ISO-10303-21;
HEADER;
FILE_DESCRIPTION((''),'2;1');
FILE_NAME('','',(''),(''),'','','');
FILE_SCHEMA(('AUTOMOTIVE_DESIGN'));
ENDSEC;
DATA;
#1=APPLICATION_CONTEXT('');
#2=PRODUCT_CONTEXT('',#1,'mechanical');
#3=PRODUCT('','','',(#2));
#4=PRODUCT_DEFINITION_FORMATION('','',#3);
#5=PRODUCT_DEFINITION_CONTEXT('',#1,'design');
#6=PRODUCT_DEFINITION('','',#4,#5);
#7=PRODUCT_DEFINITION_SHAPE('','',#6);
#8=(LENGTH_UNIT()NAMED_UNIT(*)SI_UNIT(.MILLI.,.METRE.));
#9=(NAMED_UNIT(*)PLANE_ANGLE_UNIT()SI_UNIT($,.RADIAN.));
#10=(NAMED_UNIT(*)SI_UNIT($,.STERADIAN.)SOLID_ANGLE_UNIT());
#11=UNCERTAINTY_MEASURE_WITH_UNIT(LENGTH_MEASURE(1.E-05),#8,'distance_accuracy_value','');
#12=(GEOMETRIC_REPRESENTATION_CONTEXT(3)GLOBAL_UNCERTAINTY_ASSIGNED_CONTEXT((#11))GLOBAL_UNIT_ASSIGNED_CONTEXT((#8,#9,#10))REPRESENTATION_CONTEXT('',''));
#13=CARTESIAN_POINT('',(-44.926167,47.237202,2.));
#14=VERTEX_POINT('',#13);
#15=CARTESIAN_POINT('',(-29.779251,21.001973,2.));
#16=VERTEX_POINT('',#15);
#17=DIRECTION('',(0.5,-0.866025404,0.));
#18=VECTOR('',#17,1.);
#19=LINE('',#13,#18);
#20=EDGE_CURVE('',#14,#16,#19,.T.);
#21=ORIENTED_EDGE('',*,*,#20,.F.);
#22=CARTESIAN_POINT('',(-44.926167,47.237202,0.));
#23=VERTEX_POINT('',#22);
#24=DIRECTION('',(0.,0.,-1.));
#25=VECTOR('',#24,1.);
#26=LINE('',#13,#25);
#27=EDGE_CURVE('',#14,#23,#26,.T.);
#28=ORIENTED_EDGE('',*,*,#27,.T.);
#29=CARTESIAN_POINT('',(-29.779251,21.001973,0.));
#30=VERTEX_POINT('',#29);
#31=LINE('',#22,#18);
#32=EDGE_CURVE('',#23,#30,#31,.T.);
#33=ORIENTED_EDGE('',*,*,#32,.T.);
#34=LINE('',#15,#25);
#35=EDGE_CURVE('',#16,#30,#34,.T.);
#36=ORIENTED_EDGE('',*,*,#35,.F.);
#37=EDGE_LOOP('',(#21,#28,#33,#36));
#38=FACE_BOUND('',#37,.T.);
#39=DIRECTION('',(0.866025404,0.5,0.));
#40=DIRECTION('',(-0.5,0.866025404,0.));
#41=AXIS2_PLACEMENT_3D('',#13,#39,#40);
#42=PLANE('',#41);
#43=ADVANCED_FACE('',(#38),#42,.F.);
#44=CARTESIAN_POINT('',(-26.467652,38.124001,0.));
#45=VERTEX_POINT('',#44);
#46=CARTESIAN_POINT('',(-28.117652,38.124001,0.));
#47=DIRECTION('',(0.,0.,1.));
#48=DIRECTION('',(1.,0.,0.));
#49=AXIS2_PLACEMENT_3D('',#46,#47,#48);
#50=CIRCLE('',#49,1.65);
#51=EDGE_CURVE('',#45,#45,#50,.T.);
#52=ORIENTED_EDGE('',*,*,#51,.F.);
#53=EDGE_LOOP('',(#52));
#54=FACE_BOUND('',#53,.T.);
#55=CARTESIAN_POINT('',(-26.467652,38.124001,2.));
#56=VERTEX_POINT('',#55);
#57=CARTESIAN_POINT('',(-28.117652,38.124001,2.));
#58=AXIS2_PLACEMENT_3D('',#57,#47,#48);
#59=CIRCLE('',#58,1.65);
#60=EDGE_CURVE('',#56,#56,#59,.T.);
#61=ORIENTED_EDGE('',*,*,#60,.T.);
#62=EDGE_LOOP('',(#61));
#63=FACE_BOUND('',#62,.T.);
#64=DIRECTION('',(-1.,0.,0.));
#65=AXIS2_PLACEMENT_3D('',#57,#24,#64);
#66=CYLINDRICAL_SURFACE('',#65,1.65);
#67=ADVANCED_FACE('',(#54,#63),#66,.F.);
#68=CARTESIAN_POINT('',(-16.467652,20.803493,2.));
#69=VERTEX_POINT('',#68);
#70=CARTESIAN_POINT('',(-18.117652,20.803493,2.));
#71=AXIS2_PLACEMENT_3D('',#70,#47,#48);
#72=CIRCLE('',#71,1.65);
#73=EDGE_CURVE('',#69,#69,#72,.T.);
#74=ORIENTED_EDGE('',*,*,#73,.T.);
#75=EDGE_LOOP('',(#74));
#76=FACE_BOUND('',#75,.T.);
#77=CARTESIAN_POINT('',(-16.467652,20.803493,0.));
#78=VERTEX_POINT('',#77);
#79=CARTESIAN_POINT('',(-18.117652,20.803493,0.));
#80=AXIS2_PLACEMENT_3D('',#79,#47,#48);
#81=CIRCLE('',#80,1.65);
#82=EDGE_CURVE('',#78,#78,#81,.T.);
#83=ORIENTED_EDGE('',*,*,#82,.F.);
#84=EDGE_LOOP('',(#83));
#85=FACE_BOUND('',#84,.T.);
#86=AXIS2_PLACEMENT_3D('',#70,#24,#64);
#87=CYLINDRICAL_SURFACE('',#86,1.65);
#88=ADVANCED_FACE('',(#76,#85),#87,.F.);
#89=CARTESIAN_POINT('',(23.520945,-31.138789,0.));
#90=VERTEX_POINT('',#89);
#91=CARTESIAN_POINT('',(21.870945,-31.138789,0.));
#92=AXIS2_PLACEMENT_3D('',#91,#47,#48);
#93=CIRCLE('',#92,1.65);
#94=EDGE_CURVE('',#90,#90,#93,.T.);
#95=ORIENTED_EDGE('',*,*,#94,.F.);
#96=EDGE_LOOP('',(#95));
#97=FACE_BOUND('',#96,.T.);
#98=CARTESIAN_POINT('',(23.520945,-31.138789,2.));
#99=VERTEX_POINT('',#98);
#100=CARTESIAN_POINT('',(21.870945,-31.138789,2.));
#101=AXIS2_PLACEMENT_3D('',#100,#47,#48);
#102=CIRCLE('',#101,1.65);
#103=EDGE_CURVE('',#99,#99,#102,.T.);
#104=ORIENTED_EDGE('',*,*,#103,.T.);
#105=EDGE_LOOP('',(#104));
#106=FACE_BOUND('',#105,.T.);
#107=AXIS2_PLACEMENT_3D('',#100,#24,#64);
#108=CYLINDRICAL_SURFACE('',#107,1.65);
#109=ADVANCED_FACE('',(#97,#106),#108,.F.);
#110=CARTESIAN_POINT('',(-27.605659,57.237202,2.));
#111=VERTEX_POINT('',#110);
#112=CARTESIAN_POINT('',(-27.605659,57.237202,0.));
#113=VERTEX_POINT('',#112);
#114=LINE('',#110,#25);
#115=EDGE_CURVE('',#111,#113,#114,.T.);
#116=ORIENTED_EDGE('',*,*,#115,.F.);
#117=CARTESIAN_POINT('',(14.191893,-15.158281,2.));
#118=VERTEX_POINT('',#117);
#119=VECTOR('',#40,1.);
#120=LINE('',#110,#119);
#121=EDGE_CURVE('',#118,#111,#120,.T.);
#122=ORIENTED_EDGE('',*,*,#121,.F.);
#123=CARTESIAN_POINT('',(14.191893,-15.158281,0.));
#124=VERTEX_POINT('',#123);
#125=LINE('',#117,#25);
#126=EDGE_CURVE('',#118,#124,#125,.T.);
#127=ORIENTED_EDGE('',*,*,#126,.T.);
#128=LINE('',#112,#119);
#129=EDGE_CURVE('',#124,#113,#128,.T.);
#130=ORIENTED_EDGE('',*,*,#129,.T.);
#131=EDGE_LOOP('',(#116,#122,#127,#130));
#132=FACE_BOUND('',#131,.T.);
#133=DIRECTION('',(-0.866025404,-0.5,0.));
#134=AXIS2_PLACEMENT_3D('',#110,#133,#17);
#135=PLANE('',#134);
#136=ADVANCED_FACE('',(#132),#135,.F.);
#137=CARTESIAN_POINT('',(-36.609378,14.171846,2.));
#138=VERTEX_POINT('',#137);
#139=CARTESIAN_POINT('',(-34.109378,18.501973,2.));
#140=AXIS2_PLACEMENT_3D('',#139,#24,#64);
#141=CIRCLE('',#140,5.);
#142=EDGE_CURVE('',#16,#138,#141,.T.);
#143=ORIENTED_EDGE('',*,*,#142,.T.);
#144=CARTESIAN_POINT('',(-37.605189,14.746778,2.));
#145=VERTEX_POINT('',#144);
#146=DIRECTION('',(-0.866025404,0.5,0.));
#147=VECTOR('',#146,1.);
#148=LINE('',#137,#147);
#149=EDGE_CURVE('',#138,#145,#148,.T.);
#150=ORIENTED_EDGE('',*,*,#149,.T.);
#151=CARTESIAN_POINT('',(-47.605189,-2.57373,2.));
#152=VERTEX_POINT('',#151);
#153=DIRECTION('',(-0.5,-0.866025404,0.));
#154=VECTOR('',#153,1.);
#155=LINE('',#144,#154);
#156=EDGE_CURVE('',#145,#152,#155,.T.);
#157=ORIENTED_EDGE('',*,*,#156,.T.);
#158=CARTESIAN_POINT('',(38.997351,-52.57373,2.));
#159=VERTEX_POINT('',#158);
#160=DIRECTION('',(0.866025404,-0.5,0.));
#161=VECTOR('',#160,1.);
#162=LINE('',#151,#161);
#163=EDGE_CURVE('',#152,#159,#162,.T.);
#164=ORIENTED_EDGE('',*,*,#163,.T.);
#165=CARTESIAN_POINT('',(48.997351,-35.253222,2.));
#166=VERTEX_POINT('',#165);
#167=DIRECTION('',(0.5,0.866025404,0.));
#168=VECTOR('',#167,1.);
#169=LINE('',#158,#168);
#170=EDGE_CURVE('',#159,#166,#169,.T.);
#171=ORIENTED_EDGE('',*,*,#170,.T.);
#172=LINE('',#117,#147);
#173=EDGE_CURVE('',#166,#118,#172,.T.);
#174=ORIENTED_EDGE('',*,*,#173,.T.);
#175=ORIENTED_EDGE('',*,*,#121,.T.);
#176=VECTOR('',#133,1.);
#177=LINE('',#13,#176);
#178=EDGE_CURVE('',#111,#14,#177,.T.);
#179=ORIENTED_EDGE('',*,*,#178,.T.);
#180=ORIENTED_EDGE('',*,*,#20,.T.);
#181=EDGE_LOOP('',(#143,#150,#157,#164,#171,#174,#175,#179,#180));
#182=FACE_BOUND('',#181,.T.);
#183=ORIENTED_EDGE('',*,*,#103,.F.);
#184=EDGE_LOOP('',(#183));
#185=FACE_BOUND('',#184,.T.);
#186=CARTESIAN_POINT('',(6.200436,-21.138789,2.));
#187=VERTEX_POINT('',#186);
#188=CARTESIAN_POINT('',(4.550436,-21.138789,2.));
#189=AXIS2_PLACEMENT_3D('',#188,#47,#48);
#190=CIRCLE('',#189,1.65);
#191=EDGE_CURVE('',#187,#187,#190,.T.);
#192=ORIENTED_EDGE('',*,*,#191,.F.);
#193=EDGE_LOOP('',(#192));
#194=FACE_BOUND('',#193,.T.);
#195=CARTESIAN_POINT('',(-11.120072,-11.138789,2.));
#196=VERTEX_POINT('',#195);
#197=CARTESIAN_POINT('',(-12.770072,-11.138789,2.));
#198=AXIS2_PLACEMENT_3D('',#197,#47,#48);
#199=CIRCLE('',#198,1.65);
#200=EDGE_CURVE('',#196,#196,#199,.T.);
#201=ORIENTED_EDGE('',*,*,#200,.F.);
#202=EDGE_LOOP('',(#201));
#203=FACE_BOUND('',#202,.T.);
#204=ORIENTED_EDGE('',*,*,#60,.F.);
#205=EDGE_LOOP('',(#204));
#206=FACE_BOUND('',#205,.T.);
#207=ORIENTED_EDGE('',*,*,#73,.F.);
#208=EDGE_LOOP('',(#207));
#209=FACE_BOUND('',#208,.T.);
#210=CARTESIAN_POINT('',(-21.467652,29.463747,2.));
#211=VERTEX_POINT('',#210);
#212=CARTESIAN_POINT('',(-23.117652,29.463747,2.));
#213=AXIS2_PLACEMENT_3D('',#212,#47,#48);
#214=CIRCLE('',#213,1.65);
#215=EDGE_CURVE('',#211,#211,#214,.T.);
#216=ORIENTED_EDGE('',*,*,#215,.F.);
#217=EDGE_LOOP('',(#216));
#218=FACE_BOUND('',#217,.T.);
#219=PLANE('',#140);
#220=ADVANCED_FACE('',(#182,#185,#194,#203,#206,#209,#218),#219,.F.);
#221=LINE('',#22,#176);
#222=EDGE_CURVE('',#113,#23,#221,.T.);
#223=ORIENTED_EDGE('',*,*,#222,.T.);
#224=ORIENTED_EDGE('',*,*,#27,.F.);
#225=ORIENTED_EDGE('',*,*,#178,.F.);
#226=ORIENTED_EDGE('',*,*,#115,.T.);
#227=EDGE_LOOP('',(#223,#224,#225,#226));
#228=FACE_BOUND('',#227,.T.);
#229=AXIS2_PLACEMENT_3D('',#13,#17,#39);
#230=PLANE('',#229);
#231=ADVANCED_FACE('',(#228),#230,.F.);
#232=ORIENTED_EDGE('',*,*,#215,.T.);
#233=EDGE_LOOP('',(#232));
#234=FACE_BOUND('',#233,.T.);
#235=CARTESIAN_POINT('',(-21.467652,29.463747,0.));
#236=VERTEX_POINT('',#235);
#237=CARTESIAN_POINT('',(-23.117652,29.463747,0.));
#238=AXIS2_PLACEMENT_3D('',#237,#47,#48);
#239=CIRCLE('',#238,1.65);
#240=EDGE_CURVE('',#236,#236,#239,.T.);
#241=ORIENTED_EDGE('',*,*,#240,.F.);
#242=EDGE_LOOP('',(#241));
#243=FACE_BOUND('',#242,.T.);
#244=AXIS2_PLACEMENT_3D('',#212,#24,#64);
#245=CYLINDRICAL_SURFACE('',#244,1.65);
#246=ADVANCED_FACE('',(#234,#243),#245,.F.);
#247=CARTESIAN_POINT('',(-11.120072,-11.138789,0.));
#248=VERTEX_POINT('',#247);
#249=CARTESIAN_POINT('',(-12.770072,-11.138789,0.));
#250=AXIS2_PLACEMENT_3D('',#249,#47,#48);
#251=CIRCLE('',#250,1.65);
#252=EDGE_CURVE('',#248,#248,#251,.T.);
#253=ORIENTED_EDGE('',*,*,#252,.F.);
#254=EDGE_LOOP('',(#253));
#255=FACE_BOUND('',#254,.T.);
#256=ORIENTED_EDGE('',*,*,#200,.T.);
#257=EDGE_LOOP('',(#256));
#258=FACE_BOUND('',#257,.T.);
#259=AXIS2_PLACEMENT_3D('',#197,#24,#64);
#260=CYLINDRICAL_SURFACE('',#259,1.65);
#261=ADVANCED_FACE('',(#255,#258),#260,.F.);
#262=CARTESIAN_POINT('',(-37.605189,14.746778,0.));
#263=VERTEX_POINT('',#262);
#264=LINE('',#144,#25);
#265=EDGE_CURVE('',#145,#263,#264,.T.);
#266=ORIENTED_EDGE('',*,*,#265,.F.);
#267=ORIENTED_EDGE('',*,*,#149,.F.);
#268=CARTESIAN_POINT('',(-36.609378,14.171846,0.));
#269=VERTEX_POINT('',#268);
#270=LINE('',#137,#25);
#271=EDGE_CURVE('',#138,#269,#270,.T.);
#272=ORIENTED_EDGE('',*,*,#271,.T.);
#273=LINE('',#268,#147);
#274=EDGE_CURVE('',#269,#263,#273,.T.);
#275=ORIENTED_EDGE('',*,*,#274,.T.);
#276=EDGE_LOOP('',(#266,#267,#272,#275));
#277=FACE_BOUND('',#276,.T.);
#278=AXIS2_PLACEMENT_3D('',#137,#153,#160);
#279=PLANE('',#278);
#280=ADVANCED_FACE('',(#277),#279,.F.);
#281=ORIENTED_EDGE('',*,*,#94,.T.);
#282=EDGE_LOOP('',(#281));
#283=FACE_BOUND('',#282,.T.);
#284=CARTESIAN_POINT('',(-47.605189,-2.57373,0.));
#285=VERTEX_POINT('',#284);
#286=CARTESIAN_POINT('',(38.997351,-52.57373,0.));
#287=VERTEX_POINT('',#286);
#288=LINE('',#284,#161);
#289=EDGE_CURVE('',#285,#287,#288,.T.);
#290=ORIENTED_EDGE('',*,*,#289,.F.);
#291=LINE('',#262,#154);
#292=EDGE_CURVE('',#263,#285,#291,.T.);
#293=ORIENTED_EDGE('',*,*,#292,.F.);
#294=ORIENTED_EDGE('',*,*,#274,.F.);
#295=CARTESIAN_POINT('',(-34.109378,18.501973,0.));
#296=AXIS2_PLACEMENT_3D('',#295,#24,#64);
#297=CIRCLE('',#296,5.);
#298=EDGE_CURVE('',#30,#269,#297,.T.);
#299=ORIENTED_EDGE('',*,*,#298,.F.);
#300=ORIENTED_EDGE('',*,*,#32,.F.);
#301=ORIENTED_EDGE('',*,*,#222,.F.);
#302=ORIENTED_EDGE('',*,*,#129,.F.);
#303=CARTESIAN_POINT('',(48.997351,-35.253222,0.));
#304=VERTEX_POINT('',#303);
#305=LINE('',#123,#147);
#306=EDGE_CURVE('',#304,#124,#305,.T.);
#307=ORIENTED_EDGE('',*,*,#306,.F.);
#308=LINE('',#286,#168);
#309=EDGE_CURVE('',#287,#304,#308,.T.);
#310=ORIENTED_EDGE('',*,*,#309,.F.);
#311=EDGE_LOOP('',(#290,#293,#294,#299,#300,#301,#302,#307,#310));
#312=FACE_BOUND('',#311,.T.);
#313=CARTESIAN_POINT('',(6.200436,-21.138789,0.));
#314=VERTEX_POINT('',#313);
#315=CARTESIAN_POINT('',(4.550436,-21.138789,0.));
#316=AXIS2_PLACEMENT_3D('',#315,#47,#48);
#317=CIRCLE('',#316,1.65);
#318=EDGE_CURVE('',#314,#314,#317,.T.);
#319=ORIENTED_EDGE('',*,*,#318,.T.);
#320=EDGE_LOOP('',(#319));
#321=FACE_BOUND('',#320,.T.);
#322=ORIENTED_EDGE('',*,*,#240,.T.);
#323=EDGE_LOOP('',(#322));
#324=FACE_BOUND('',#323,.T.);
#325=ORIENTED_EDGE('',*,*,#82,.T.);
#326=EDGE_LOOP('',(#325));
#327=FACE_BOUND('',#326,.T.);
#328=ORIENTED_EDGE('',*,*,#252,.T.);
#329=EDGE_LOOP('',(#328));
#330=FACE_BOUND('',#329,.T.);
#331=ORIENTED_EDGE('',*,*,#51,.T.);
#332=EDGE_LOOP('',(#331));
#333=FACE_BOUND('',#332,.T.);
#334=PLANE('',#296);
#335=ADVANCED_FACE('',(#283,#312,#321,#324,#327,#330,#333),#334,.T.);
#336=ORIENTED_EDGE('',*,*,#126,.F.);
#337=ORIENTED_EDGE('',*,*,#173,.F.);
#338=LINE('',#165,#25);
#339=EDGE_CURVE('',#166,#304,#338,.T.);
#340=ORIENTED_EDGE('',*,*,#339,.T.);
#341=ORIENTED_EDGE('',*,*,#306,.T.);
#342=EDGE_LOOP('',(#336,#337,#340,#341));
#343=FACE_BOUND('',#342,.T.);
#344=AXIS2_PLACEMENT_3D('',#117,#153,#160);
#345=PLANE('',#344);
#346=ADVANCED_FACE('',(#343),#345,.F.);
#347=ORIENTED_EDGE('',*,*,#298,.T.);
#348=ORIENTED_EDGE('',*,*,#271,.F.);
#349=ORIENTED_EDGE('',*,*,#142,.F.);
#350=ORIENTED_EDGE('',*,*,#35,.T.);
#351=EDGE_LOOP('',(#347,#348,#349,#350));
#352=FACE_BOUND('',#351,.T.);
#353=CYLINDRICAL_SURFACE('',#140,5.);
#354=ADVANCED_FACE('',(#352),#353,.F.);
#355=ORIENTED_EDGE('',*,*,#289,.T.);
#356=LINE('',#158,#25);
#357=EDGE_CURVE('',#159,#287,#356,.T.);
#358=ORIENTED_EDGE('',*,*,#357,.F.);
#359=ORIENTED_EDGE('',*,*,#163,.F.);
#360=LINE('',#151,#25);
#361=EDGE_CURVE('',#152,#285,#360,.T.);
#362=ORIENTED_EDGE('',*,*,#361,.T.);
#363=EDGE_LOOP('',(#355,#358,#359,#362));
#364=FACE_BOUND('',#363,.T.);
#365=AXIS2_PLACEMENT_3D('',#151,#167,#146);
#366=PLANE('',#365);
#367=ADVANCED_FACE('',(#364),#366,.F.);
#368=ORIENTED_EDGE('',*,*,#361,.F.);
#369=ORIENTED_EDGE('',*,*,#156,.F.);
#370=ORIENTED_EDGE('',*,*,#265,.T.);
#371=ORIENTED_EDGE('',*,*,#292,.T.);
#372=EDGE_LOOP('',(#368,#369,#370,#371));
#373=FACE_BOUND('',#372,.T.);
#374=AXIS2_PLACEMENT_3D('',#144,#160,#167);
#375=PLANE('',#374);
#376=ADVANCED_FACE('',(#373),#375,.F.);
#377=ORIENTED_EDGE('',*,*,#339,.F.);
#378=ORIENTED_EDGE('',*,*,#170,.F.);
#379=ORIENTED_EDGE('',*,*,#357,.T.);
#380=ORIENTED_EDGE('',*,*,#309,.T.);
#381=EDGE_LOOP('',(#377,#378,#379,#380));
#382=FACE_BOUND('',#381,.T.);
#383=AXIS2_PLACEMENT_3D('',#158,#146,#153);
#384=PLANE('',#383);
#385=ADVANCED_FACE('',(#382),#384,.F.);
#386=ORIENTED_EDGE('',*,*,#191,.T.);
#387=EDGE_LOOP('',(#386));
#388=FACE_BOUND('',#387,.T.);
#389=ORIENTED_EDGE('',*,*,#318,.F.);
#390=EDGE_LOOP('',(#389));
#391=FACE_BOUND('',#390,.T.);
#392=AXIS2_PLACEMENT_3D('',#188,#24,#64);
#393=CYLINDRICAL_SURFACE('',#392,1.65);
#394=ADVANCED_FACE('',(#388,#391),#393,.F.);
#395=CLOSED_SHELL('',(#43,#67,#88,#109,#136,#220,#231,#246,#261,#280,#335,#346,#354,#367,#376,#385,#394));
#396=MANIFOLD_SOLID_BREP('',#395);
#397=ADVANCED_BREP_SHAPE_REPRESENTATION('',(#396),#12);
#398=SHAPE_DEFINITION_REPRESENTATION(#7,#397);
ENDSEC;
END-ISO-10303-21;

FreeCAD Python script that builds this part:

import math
import FreeCAD as App
import Part
import Sketcher

V = App.Vector
Q = App.Units.Quantity

doc = App.newDocument("Part")
params = doc.addObject("Spreadsheet::Sheet", "Params")
for row, (alias, value) in enumerate([
    ("sketch1_radius", "5 mm"),
    ("sketch1_diameter", "3.3 mm"),
    ("sketch1_length", "20 mm"),
    ("sketch1_length2", "100 mm"),
    ("pad1_length", "2 mm"),
], start=1):
    params.set(f"A{row}", alias)
    params.set(f"B{row}", "=" + value)
    params.setAlias(f"B{row}", alias)

body = doc.addObject("PartDesign::Body", "Body")

sketch1 = body.newObject("Sketcher::SketchObject", "Sketch")
sketch1.AttachmentSupport = (doc.getObject("XY_Plane"), [""])
sketch1.MapMode = "FlatFace"
sketch1.addGeometry([
    Part.LineSegment(V(-37.605189, 14.746778, 0), V(-47.605189, -2.57373, 0)),
    Part.LineSegment(V(-47.605189, -2.57373, 0), V(38.997351, -52.57373, 0)),
    Part.LineSegment(V(38.997351, -52.57373, 0), V(48.997351, -35.253222, 0)),
    Part.LineSegment(V(48.997351, -35.253222, 0), V(14.191893, -15.158281, 0)),
    Part.LineSegment(V(14.191893, -15.158281, 0), V(-27.605659, 57.237202, 0)),
    Part.LineSegment(V(-27.605659, 57.237202, 0), V(-44.926167, 47.237202, 0)),
    Part.LineSegment(V(-44.926167, 47.237202, 0), V(-29.779251, 21.001973, 0)),
    Part.ArcOfCircle(Part.Circle(V(-34.109378, 18.501973, 0), V(0, 0, 1), 5), math.radians(-120), math.radians(30)),
    Part.LineSegment(V(-36.609378, 14.171846, 0), V(-37.605189, 14.746778, 0)),
    Part.Circle(V(-12.770072, -11.138789, 0), V(0, 0, 1), 1.65),
    Part.Circle(V(4.550436, -21.138789, 0), V(0, 0, 1), 1.65),
    Part.Circle(V(21.870945, -31.138789, 0), V(0, 0, 1), 1.65),
    Part.Circle(V(-18.117652, 20.803493, 0), V(0, 0, 1), 1.65),
    Part.Circle(V(-23.117652, 29.463747, 0), V(0, 0, 1), 1.65),
    Part.Circle(V(-28.117652, 38.124001, 0), V(0, 0, 1), 1.65),
], False)
sketch1.addConstraint([
    Sketcher.Constraint("Coincident", 0, 2, 1, 1),
    Sketcher.Constraint("Coincident", 1, 2, 2, 1),
    Sketcher.Constraint("Coincident", 2, 2, 3, 1),
    Sketcher.Constraint("Coincident", 3, 2, 4, 1),
    Sketcher.Constraint("Coincident", 4, 2, 5, 1),
    Sketcher.Constraint("Coincident", 5, 2, 6, 1),
    Sketcher.Constraint("Tangent", 6, 2, 7, 2),
    Sketcher.Constraint("Tangent", 7, 1, 8, 1),
    Sketcher.Constraint("Coincident", 8, 2, 0, 1),
    Sketcher.Constraint("Equal", 9, 10),
    Sketcher.Constraint("Equal", 10, 11),
    Sketcher.Constraint("Equal", 11, 12),
    Sketcher.Constraint("Equal", 12, 13),
    Sketcher.Constraint("Equal", 13, 14),
    Sketcher.Constraint("Perpendicular", 0, 1),
    Sketcher.Constraint("Perpendicular", 1, 2),
    Sketcher.Constraint("Perpendicular", 2, 3),
    Sketcher.Constraint("Perpendicular", 4, 5),
    Sketcher.Constraint("Perpendicular", 5, 6),
    Sketcher.Constraint("Parallel", 3, 8),
    Sketcher.Constraint("Equal", 0, 2),
    Sketcher.Constraint("Equal", 2, 5),
    Sketcher.Constraint("Radius", 7, Q("5 mm")),
    Sketcher.Constraint("Diameter", 9, Q("3.3 mm")),
    Sketcher.Constraint("Angle", 0, Q("-120 deg")),
    Sketcher.Constraint("Angle", 4, Q("120 deg")),
    Sketcher.Constraint("Distance", 0, Q("20 mm")),
    Sketcher.Constraint("Distance", 1, Q("100 mm")),
    Sketcher.Constraint("DistanceY", 10, 3, 9, 3, Q("10 mm")),
    Sketcher.Constraint("DistanceY", 11, 3, 10, 3, Q("10 mm")),
    Sketcher.Constraint("DistanceX", 13, 3, 12, 3, Q("5 mm")),
    Sketcher.Constraint("DistanceX", 14, 3, 13, 3, Q("5 mm")),
    Sketcher.Constraint("DistanceY", -1, 1, 14, 3, Q("38.124001 mm")),
    Sketcher.Constraint("DistanceY", -1, 1, 4, 2, Q("57.237202 mm")),
    Sketcher.Constraint("DistanceX", 6, 2, 13, 3, Q("6.661598 mm")),
    Sketcher.Constraint("DistanceY", 7, 1, 13, 3, Q("15.2919 mm")),
    Sketcher.Constraint("Distance", 3, Q("40.189881 mm")),
    Sketcher.Constraint("DistanceX", 9, 3, -1, 1, Q("12.770072 mm")),
    Sketcher.Constraint("DistanceY", 9, 3, -1, 1, Q("11.138789 mm")),
    Sketcher.Constraint("DistanceX", 0, 2, -1, 1, Q("47.605189 mm")),
    Sketcher.Constraint("DistanceY", 0, 2, -1, 1, Q("2.57373 mm")),
    Sketcher.Constraint("DistanceX", 9, 3, 10, 3, Q("17.320508 mm")),
    Sketcher.Constraint("DistanceX", 10, 3, 11, 3, Q("17.320508 mm")),
    Sketcher.Constraint("DistanceY", 7, 3, 12, 3, Q("2.301519 mm")),
])
sketch1.setExpression("Constraints[22]", "Params.sketch1_radius")
sketch1.setExpression("Constraints[23]", "Params.sketch1_diameter")
sketch1.setExpression("Constraints[26]", "Params.sketch1_length")
sketch1.setExpression("Constraints[27]", "Params.sketch1_length2")
pad1 = body.newObject("PartDesign::Pad", "Pad")
pad1.Profile = sketch1
pad1.setExpression("Length", "Params.pad1_length")

doc.recompute()
